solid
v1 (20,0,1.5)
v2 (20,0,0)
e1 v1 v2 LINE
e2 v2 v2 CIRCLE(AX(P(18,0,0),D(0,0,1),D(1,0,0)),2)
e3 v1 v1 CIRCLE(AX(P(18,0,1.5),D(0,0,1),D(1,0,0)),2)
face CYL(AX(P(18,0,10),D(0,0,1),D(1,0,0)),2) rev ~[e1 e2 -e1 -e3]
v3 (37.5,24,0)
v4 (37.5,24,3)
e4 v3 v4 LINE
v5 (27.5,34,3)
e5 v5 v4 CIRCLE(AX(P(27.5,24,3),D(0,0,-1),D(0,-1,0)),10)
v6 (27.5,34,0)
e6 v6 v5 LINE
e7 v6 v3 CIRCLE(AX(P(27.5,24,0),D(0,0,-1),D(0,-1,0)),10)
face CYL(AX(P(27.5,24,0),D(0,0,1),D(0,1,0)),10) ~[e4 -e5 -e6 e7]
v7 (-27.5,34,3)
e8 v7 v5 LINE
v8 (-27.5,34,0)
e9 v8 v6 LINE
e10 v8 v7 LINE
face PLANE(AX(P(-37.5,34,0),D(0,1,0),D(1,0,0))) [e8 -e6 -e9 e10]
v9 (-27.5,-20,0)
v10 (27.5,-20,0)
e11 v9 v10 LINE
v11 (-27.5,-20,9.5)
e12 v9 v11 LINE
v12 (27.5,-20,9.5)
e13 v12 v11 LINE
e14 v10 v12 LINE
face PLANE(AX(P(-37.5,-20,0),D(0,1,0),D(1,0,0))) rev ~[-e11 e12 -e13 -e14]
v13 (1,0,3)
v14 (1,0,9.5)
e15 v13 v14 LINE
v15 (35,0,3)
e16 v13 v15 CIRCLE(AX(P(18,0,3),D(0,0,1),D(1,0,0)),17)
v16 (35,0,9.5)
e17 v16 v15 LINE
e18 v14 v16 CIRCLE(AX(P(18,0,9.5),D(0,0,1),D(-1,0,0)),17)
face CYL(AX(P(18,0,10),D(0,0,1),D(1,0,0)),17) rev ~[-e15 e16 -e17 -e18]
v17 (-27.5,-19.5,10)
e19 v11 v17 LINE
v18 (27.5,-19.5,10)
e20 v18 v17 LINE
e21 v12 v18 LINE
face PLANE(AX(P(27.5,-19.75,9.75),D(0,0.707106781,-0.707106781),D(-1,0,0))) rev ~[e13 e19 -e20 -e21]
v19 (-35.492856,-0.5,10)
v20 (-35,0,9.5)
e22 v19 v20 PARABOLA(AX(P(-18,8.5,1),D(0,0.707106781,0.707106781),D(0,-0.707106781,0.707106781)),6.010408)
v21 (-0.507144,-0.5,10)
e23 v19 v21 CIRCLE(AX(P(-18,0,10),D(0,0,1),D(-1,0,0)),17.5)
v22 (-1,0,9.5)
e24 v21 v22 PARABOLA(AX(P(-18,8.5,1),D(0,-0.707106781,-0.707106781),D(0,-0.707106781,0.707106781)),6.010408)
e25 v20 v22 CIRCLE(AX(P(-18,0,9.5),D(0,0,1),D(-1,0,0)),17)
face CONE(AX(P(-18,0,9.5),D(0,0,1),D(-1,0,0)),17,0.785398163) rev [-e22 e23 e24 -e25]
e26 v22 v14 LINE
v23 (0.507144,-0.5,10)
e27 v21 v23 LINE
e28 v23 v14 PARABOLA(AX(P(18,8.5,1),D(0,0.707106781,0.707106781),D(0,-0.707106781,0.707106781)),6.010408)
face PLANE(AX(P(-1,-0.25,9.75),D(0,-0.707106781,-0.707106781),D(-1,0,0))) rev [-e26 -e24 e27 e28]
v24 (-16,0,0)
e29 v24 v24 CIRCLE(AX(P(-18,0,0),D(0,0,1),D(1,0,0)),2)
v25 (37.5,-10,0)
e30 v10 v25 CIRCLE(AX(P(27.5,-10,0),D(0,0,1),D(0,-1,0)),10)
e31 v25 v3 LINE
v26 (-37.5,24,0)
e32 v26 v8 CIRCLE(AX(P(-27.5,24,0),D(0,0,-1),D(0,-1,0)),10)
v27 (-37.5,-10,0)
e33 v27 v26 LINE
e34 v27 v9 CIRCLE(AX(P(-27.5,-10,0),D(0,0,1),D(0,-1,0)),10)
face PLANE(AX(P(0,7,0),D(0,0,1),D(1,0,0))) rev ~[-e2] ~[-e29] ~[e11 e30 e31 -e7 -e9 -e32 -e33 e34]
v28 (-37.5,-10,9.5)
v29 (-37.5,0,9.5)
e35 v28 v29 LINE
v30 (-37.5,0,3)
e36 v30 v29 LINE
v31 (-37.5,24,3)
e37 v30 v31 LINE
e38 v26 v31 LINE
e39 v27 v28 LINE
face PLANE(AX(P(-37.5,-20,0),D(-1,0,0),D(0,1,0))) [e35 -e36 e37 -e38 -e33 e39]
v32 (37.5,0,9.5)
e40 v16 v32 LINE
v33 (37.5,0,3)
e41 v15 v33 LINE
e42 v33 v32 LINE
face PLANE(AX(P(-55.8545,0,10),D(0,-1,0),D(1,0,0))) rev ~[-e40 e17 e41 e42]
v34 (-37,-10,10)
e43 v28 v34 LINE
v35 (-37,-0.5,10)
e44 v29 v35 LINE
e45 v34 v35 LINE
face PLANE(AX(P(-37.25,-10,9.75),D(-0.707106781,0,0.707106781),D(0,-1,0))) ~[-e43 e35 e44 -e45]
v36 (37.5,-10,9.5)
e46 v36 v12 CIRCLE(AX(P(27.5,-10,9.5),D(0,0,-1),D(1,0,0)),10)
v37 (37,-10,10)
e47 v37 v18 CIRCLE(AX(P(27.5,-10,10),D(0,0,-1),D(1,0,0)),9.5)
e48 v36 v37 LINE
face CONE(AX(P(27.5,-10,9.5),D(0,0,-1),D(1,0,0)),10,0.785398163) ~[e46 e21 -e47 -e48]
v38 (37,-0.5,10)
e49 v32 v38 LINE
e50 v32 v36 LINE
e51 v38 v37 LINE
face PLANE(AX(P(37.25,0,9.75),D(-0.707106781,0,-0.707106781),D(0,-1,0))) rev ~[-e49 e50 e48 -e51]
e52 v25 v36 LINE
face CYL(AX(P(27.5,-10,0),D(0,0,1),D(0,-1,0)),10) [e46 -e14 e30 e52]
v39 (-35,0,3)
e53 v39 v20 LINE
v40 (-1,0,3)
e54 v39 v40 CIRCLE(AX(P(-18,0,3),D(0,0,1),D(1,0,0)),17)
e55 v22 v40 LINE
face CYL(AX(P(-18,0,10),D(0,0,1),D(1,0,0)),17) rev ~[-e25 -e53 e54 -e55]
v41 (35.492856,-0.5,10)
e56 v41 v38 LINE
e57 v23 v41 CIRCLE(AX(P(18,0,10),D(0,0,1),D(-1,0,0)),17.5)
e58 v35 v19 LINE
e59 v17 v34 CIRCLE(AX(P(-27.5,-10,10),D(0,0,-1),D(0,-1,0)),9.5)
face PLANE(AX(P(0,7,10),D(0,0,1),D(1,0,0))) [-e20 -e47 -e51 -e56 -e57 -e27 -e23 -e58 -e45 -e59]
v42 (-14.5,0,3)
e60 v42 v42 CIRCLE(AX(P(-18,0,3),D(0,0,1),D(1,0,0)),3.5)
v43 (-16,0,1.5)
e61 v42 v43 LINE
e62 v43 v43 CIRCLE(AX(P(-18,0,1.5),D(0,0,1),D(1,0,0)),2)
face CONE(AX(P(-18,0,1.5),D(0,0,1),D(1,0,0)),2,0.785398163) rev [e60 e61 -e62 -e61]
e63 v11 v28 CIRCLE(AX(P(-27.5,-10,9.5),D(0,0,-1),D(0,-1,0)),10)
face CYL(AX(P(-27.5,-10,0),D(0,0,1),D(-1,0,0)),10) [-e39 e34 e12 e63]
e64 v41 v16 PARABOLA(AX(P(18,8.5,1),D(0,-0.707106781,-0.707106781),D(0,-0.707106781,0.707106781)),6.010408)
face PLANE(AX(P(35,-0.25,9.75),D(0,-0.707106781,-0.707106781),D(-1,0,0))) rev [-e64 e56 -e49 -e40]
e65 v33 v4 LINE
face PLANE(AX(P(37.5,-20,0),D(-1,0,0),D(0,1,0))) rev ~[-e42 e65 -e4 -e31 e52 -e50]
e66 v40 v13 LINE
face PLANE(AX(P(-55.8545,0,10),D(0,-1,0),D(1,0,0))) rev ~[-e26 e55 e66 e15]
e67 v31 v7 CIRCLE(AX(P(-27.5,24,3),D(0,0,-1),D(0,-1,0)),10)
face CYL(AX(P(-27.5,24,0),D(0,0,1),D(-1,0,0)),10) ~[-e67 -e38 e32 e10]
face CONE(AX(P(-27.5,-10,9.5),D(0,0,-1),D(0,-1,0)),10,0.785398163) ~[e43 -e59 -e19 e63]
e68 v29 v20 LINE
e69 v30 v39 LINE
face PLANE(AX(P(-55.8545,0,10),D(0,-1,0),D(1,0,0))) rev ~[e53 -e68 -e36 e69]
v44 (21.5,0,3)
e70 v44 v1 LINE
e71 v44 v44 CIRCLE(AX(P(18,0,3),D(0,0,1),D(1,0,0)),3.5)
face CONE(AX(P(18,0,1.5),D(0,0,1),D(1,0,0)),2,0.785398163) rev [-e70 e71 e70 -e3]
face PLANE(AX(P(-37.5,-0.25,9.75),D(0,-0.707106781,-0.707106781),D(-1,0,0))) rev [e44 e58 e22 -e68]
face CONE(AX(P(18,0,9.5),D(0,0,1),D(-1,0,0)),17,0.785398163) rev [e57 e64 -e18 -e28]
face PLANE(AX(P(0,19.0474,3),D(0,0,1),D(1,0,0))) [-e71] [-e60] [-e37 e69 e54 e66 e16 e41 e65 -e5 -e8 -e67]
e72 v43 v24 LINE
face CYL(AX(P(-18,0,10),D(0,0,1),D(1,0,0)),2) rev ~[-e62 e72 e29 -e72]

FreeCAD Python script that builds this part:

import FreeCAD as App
import Part
import Sketcher

V = App.Vector


def edges_at(feature, points):
    """Names of the edges that pass closest to the given points."""
    edges = feature.Shape.Edges
    near = lambda p: min(range(len(edges)), key=lambda i: edges[i].distToShape(Part.Vertex(*p))[0])
    return sorted({f"Edge{near(p) + 1}" for p in points})


def add_polygon(sketch, points):
    """Adds a closed chain of lines whose ends are joined by coincident constraints."""
    first, n = sketch.GeometryCount, len(points)
    for a, b in zip(points, points[1:] + points[:1]):
        sketch.addGeometry(Part.LineSegment(App.Vector(*a, 0), App.Vector(*b, 0)), False)
    for i in range(n):
        sketch.addConstraint(Sketcher.Constraint("Coincident", first + i, 2, first + (i + 1) % n, 1))

doc = App.newDocument("Part")
body = doc.addObject("PartDesign::Body", "Body")

sketch1 = body.newObject("Sketcher::SketchObject", "Sketch")
sketch1.AttachmentSupport = (doc.getObject("XY_Plane"), [""])
sketch1.MapMode = "FlatFace"
add_polygon(sketch1, [(-38, 34), (-38, -20), (38, -20), (38, 34)])
sketch1.addConstraint([
    Sketcher.Constraint("Vertical", 0),
    Sketcher.Constraint("Horizontal", 1),
    Sketcher.Constraint("Vertical", 2),
    Sketcher.Constraint("Horizontal", 3),
    Sketcher.Constraint("DistanceX", 1, 1, 1, 2, 75.0),
    Sketcher.Constraint("DistanceY", 0, 2, 0, 1, 54.0),
    Sketcher.Constraint("DistanceY", 0, 2, -1, 1, 20.0),
    Sketcher.Constraint("DistanceX", 0, 2, -1, 1, 37.5),
])
pad1 = body.newObject("PartDesign::Pad", "Pad")
pad1.Profile = sketch1
pad1.Length = 10

sketch2 = body.newObject("Sketcher::SketchObject", "Sketch001")
sketch2.AttachmentSupport = (doc.getObject("XY_Plane"), [""])
sketch2.MapMode = "FlatFace"
sketch2.AttachmentOffset = App.Placement(V(0, 0, 10), App.Rotation())
sketch2.addGeometry([
    Part.Circle(V(-18, 0, 0), V(0, 0, 1), 17),
    Part.Circle(V(18, 0, 0), V(0, 0, 1), 17),
], False)
sketch2.addConstraint([
    Sketcher.Constraint("Equal", 0, 1),
    Sketcher.Constraint("Symmetric", 0, 3, 1, 3, -1, 1),
    Sketcher.Constraint("PointOnObject", 0, 3, -1),
    Sketcher.Constraint("Diameter", 0, 34.0),
    Sketcher.Constraint("DistanceX", 0, 3, -1, 1, 18.0),
])
pocket1 = body.newObject("PartDesign::Pocket", "Pocket")
pocket1.Profile = sketch2
pocket1.Length = 7

sketch3 = body.newObject("Sketcher::SketchObject", "Sketch002")
sketch3.AttachmentSupport = (doc.getObject("XY_Plane"), [""])
sketch3.MapMode = "FlatFace"
sketch3.AttachmentOffset = App.Placement(V(0, 0, 10), App.Rotation())
add_polygon(sketch3, [(-56, 38), (-56, 0), (56, 0), (56, 38)])
sketch3.addConstraint([
    Sketcher.Constraint("Vertical", 0),
    Sketcher.Constraint("Horizontal", 1),
    Sketcher.Constraint("Vertical", 2),
    Sketcher.Constraint("Horizontal", 3),
    Sketcher.Constraint("Symmetric", 0, 2, 1, 2, -1, 1),
    Sketcher.Constraint("DistanceX", 1, 1, 1, 2, 111.709),
    Sketcher.Constraint("DistanceY", 0, 2, 0, 1, 38.0948),
])
pocket2 = body.newObject("PartDesign::Pocket", "Pocket001")
pocket2.Profile = sketch3
pocket2.Length = 7

sketch4 = body.newObject("Sketcher::SketchObject", "Sketch003")
sketch4.AttachmentSupport = (doc.getObject("XY_Plane"), [""])
sketch4.MapMode = "FlatFace"
sketch4.AttachmentOffset = App.Placement(V(0, 0, 10), App.Rotation())
sketch4.addGeometry([
    Part.Circle(V(-18, 0, 0), V(0, 0, 1), 2),
    Part.Circle(V(18, 0, 0), V(0, 0, 1), 2),
], False)
sketch4.addConstraint([
    Sketcher.Constraint("Equal", 0, 1),
    Sketcher.Constraint("Symmetric", 0, 3, 1, 3, -1, 1),
    Sketcher.Constraint("PointOnObject", 0, 3, -1),
    Sketcher.Constraint("Diameter", 0, 4.0),
    Sketcher.Constraint("DistanceX", 0, 3, -1, 1, 18.0),
])
pocket3 = body.newObject("PartDesign::Pocket", "Pocket002")
pocket3.Profile = sketch4
pocket3.Type = "ThroughAll"
doc.recompute()

fillet = body.newObject("PartDesign::Fillet", "Fillet")
fillet.Base = (pocket3, edges_at(pocket3, [
    (37.5, 34, 1.5),
    (-37.5, 34, 1.5),
    (-37.5, -20, 5),
    (37.5, -20, 5),
]))
fillet.Radius = 10
doc.recompute()

chamfer = body.newObject("PartDesign::Chamfer", "Chamfer")
chamfer.Base = (fillet, edges_at(fillet, [
    (-37.5, -5, 10),
    (-34.571, -17.071, 10),
    (-36.25, 0, 10),
    (0, -20, 10),
    (-18, -17, 10),
    (34.571, -17.071, 10),
    (0, 0, 10),
    (37.5, -5, 10),
    (18, -17, 10),
    (36.25, 0, 10),
]))
chamfer.Size = 0.5
doc.recompute()

chamfer2 = body.newObject("PartDesign::Chamfer", "Chamfer001")
chamfer2.Base = (chamfer, edges_at(chamfer, [(16, 0, 3), (-20, 0, 3)]))
chamfer2.Size = 1.5

doc.recompute()
